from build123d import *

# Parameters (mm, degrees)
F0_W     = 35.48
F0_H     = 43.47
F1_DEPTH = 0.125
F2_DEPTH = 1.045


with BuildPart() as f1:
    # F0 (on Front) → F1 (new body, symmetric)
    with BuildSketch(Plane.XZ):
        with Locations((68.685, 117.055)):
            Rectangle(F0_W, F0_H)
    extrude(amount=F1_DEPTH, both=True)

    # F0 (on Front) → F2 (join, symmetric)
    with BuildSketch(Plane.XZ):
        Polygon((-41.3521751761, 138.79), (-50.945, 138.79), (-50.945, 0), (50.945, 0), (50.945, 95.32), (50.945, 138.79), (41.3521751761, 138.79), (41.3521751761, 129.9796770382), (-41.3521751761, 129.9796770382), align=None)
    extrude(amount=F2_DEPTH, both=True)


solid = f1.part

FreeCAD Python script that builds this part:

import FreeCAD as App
import Part
import Sketcher

V = App.Vector
Q = App.Units.Quantity


def add_polygon(sketch, points):
    """Adds a closed chain of lines whose ends are joined by coincident constraints."""
    first, n = sketch.GeometryCount, len(points)
    for a, b in zip(points, points[1:] + points[:1]):
        sketch.addGeometry(Part.LineSegment(App.Vector(*a, 0), App.Vector(*b, 0)), False)
    for i in range(n):
        sketch.addConstraint(Sketcher.Constraint("Coincident", first + i, 2, first + (i + 1) % n, 1))

doc = App.newDocument("Part")
body = doc.addObject("PartDesign::Body", "Body")

sketch1 = body.newObject("Sketcher::SketchObject", "Sketch")
sketch1.AttachmentSupport = (doc.getObject("XZ_Plane"), [""])
sketch1.MapMode = "FlatFace"
add_polygon(sketch1, [(50.945, 138.79), (50.945, 95.32), (86.425, 95.32), (86.425, 138.79)])
sketch1.addConstraint([
    Sketcher.Constraint("Vertical", 0),
    Sketcher.Constraint("Horizontal", 1),
    Sketcher.Constraint("Vertical", 2),
    Sketcher.Constraint("Horizontal", 3),
    Sketcher.Constraint("DistanceX", 1, 1, 1, 2, Q("35.48 mm")),
    Sketcher.Constraint("DistanceY", 0, 2, 0, 1, Q("43.47 mm")),
    Sketcher.Constraint("DistanceY", -1, 1, 0, 2, Q("95.32 mm")),
    Sketcher.Constraint("DistanceX", -1, 1, 0, 2, Q("50.945 mm")),
])
pad1 = body.newObject("PartDesign::Pad", "Pad")
pad1.Profile = sketch1
pad1.Length = 0.25
pad1.Midplane = True

sketch2 = body.newObject("Sketcher::SketchObject", "Sketch001")
sketch2.AttachmentSupport = (doc.getObject("XZ_Plane"), [""])
sketch2.MapMode = "FlatFace"
add_polygon(sketch2, [(-41.352175, 138.79), (-50.945, 138.79), (-50.945, 0), (50.945, 0), (50.945, 138.79), (41.352175, 138.79), (41.352175, 129.979677), (-41.352175, 129.979677)])
sketch2.addConstraint([
    Sketcher.Constraint("Horizontal", 0),
    Sketcher.Constraint("Vertical", 1),
    Sketcher.Constraint("Horizontal", 2),
    Sketcher.Constraint("Vertical", 3),
    Sketcher.Constraint("Horizontal", 4),
    Sketcher.Constraint("Vertical", 5),
    Sketcher.Constraint("Horizontal", 6),
    Sketcher.Constraint("Vertical", 7),
    Sketcher.Constraint("Symmetric", 1, 2, 2, 2, -1, 1),
    Sketcher.Constraint("Symmetric", 4, 2, 7, 2, -2),
    Sketcher.Constraint("DistanceX", 2, 1, 2, 2, Q("101.89 mm")),
    Sketcher.Constraint("DistanceY", 1, 2, 1, 1, Q("138.79 mm")),
    Sketcher.Constraint("DistanceX", 6, 2, 6, 1, Q("82.70435 mm")),
    Sketcher.Constraint("DistanceY", 5, 2, 5, 1, Q("8.810323 mm")),
])
pad2 = body.newObject("PartDesign::Pad", "Pad001")
pad2.Profile = sketch2
pad2.Length = 2.09
pad2.Midplane = True

doc.recompute()
